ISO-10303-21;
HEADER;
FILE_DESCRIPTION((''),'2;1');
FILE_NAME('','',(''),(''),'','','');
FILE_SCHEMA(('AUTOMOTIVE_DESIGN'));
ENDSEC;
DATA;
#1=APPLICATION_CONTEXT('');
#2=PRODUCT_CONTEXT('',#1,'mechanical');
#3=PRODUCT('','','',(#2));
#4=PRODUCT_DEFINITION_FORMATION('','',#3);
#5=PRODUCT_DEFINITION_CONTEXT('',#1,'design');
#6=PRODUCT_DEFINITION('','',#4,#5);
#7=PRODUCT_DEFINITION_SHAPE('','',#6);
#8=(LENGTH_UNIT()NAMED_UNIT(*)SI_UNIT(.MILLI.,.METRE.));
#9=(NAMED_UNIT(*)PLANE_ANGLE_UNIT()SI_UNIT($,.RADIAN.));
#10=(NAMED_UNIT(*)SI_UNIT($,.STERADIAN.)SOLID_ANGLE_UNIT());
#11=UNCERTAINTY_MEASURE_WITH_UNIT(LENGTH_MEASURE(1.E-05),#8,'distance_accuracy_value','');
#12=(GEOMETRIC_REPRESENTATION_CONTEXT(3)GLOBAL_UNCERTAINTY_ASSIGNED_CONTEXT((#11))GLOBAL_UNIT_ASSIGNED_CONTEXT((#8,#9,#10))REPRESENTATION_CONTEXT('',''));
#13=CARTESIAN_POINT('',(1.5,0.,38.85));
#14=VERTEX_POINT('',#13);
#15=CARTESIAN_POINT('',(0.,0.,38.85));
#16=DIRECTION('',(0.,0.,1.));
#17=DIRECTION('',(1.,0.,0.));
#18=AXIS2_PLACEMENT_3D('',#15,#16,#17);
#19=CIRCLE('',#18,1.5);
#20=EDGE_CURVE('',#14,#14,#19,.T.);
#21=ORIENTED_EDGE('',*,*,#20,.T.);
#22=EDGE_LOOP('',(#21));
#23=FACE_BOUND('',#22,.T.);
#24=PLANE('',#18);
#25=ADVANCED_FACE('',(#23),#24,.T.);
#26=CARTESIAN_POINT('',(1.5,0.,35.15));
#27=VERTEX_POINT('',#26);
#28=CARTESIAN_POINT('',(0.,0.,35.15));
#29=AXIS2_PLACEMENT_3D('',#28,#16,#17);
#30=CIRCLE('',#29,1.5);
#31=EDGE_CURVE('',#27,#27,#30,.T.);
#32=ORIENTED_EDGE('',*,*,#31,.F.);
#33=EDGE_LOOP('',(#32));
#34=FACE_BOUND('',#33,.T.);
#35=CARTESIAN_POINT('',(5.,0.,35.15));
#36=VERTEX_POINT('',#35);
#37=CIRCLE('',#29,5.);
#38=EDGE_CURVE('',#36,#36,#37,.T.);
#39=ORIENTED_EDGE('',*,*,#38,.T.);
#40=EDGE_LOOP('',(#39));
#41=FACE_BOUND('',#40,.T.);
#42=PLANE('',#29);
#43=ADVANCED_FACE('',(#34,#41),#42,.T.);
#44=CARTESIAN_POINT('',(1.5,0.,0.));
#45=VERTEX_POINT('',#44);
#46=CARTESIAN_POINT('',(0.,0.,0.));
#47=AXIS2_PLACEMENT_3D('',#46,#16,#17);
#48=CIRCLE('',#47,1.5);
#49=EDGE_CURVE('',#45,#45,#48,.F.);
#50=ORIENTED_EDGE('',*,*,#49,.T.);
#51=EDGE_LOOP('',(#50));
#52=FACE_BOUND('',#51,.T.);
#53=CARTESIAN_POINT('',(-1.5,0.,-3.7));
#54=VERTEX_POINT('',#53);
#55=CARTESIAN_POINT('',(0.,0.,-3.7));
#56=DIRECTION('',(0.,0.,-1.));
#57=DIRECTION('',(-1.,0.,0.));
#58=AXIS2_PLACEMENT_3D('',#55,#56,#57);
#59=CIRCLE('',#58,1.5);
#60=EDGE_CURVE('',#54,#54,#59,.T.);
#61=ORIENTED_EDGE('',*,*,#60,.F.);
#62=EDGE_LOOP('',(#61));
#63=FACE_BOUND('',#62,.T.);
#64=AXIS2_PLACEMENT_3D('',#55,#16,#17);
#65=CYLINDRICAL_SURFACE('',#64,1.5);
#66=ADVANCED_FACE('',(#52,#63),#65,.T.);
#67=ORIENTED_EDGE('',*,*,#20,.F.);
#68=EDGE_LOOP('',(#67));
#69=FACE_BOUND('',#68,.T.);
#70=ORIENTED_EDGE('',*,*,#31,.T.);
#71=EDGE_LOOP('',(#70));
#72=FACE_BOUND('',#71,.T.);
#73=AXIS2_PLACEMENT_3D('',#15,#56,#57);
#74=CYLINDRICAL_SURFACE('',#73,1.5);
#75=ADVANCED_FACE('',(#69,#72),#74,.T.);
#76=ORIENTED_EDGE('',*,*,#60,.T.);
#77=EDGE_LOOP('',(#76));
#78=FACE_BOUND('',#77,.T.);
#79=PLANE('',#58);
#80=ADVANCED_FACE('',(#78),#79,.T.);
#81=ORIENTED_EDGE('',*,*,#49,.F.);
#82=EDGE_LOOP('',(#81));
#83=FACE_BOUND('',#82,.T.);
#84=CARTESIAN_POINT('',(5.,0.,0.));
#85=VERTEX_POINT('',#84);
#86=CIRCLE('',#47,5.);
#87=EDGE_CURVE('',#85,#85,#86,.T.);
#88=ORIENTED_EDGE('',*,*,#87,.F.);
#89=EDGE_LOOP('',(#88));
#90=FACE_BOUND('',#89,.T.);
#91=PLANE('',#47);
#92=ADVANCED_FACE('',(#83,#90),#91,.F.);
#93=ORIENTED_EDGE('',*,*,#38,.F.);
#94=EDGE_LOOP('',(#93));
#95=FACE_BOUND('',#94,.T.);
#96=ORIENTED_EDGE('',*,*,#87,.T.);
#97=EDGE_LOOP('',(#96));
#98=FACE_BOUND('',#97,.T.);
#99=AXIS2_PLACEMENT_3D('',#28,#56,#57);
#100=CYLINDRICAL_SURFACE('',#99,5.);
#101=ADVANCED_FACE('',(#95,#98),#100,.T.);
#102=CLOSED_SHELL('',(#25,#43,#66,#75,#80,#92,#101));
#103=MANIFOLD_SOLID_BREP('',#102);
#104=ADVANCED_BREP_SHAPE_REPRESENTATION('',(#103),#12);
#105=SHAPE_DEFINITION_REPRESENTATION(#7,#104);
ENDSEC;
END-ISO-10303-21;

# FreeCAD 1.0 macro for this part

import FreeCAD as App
import Part
import Sketcher
Q = App.Units.Quantity

doc = App.newDocument("Part")
params = doc.addObject("Spreadsheet::Sheet", "Params")
for row, (alias, value) in enumerate([
    ("sketch1_diameter", "10 mm"),
    ("pad1_length", "35.15 mm"),
    ("sketch2_diameter", "3 mm"),
    ("pad2_length", "3.7 mm"),
    ("sketch3_diameter", "3 mm"),
    ("pad3_length", "3.7 mm"),
], start=1):
    params.set(f"A{row}", alias)
    params.set(f"B{row}", "=" + value)
    params.setAlias(f"B{row}", alias)

body = doc.addObject("PartDesign::Body", "Body")

sketch1 = body.newObject("Sketcher::SketchObject", "Sketch")
sketch1.AttachmentSupport = (doc.getObject("XY_Plane"), [""])
sketch1.MapMode = "FlatFace"
sketch1.addGeometry(Part.Circle(App.Vector(0, 0, 0), App.Vector(0, 0, 1), 5), False)
sketch1.addConstraint(Sketcher.Constraint("Coincident", 0, 3, -1, 1))
sketch1.addConstraint(Sketcher.Constraint("Diameter", 0, Q("10 mm")))
sketch1.setExpression("Constraints[1]", "Params.sketch1_diameter")
pad1 = body.newObject("PartDesign::Pad", "Pad")
pad1.Profile = sketch1
pad1.setExpression("Length", "Params.pad1_length")

sketch2 = body.newObject("Sketcher::SketchObject", "Sketch001")
sketch2.AttachmentSupport = (doc.getObject("XY_Plane"), [""])
sketch2.MapMode = "FlatFace"
sketch2.addGeometry(Part.Circle(App.Vector(0, 0, 0), App.Vector(0, 0, 1), 1.5), False)
sketch2.addConstraint(Sketcher.Constraint("Coincident", 0, 3, -1, 1))
sketch2.addConstraint(Sketcher.Constraint("Diameter", 0, Q("3 mm")))
sketch2.setExpression("Constraints[1]", "Params.sketch2_diameter")
pad2 = body.newObject("PartDesign::Pad", "Pad001")
pad2.Profile = sketch2
pad2.setExpression("Length", "Params.pad2_length")
pad2.Reversed = True

sketch3 = body.newObject("Sketcher::SketchObject", "Sketch002")
sketch3.AttachmentSupport = (doc.getObject("XY_Plane"), [""])
sketch3.MapMode = "FlatFace"
sketch3.AttachmentOffset = App.Placement(App.Vector(0, 0, 35.15), App.Rotation())
sketch3.addGeometry(Part.Circle(App.Vector(0, 0, 0), App.Vector(0, 0, 1), 1.5), False)
sketch3.addConstraint(Sketcher.Constraint("Coincident", 0, 3, -1, 1))
sketch3.addConstraint(Sketcher.Constraint("Diameter", 0, Q("3 mm")))
sketch3.setExpression("Constraints[1]", "Params.sketch3_diameter")
pad3 = body.newObject("PartDesign::Pad", "Pad002")
pad3.Profile = sketch3
pad3.setExpression("Length", "Params.pad3_length")

doc.recompute()
